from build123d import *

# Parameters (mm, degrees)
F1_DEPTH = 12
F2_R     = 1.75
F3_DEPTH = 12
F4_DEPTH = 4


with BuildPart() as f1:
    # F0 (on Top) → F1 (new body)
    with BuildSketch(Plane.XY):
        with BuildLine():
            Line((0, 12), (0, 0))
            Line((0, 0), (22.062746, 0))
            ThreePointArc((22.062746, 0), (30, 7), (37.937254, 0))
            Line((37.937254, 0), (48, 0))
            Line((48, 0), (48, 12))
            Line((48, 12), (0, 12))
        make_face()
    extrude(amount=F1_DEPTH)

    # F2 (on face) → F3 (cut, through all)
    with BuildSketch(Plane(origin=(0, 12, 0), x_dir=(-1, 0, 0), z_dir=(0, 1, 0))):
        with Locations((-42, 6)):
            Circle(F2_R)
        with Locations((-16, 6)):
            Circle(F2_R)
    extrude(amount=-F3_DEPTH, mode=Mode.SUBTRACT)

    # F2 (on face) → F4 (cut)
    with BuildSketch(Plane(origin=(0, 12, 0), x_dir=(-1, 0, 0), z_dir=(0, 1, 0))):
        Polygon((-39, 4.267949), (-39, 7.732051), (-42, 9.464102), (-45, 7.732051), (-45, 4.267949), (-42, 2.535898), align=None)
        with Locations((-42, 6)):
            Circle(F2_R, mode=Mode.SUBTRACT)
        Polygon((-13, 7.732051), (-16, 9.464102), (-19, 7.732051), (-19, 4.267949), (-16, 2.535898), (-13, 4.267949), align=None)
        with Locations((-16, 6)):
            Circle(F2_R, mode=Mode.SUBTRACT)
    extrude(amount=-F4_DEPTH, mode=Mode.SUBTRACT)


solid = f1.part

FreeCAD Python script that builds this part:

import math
import FreeCAD as App
import Part
import Sketcher

V = App.Vector
Q = App.Units.Quantity

doc = App.newDocument("Part")
body = doc.addObject("PartDesign::Body", "Body")

# Sketch on XY plane
sketch1 = doc.addObject("Sketcher::SketchObject", "Sketch")
body.addObject(sketch1)
sketch1.AttachmentSupport = (doc.XY_Plane, [""])
sketch1.MapMode = "FlatFace"
sketch1.addGeometry([
    Part.LineSegment(V(0, 12, 0), V(0, 0, 0)),  # 0
    Part.LineSegment(V(0, 0, 0), V(22, 0, 0)),  # 1
    Part.ArcOfCircle(Part.Circle(V(30, -1, 0), V(0, 0, 1), 8), math.radians(7), math.radians(173)),  # 2
    Part.LineSegment(V(38, 0, 0), V(48, 0, 0)),  # 3
    Part.LineSegment(V(48, 0, 0), V(48, 12, 0)),  # 4
    Part.LineSegment(V(48, 12, 0), V(0, 12, 0)),  # 5
], False)
sketch1.addConstraint([
    Sketcher.Constraint("Coincident", 0, 2, 1, 1),
    Sketcher.Constraint("Coincident", 1, 2, 2, 2),
    Sketcher.Constraint("Coincident", 2, 1, 3, 1),
    Sketcher.Constraint("Coincident", 3, 2, 4, 1),
    Sketcher.Constraint("Coincident", 4, 2, 5, 1),
    Sketcher.Constraint("Coincident", 5, 2, 0, 1),
    Sketcher.Constraint("Vertical", 0),
    Sketcher.Constraint("Horizontal", 1),
    Sketcher.Constraint("Horizontal", 3),
    Sketcher.Constraint("Vertical", 4),
    Sketcher.Constraint("Horizontal", 5),
    Sketcher.Constraint("Coincident", 0, 2, -1, 1),
    Sketcher.Constraint("PointOnObject", 2, 1, -1),
    Sketcher.Constraint("Radius", 2, 8.0),
    Sketcher.Constraint("DistanceX", 5, 2, 5, 1, 48.0),
    Sketcher.Constraint("DistanceY", 0, 2, 0, 1, 12.0),
    Sketcher.Constraint("DistanceX", -1, 1, 2, 3, 30.0),
    Sketcher.Constraint("DistanceY", 2, 3, -1, 1, 1.0),
])
pad1 = doc.addObject("PartDesign::Pad", "Pad")
body.addObject(pad1)
pad1.Profile = sketch1
pad1.Length = 12

# Sketch on XZ plane
sketch2 = doc.addObject("Sketcher::SketchObject", "Sketch001")
body.addObject(sketch2)
sketch2.AttachmentSupport = (doc.XZ_Plane, [""])
sketch2.MapMode = "FlatFace"
sketch2.AttachmentOffset = App.Placement(V(0, 0, -12), App.Rotation())
sketch2.addGeometry([
    Part.Circle(V(42, 6, 0), V(0, 0, 1), 1.8),
    Part.Circle(V(16, 6, 0), V(0, 0, 1), 1.8),
], False)
sketch2.addConstraint([
    Sketcher.Constraint("Equal", 0, 1),
    Sketcher.Constraint("Horizontal", 0, 3, 1, 3),
    Sketcher.Constraint("Diameter", 0, 3.5),
    Sketcher.Constraint("DistanceX", -1, 1, 0, 3, 42.0),
    Sketcher.Constraint("DistanceY", -1, 1, 0, 3, 6.0),
    Sketcher.Constraint("DistanceX", -1, 1, 1, 3, 16.0),
])
pocket1 = doc.addObject("PartDesign::Pocket", "Pocket")
body.addObject(pocket1)
pocket1.Profile = sketch2
pocket1.Type = "ThroughAll"
pocket1.Reversed = True

# Sketch on XZ plane
sketch3 = doc.addObject("Sketcher::SketchObject", "Sketch002")
body.addObject(sketch3)
sketch3.AttachmentSupport = (doc.XZ_Plane, [""])
sketch3.MapMode = "FlatFace"
sketch3.AttachmentOffset = App.Placement(V(0, 0, -12), App.Rotation())
sketch3.addGeometry([
    Part.LineSegment(V(39, 4.3, 0), V(39, 7.7, 0)),  # 0
    Part.LineSegment(V(39, 7.7, 0), V(42, 9.5, 0)),  # 1
    Part.LineSegment(V(42, 9.5, 0), V(45, 7.7, 0)),  # 2
    Part.LineSegment(V(45, 7.7, 0), V(45, 4.3, 0)),  # 3
    Part.LineSegment(V(45, 4.3, 0), V(42, 2.5, 0)),  # 4
    Part.LineSegment(V(42, 2.5, 0), V(39, 4.3, 0)),  # 5
    Part.Circle(V(42, 6, 0), V(0, 0, 1), 1.8),  # 6
    Part.LineSegment(V(13, 7.7, 0), V(16, 9.5, 0)),  # 7
    Part.LineSegment(V(16, 9.5, 0), V(19, 7.7, 0)),  # 8
    Part.LineSegment(V(19, 7.7, 0), V(19, 4.3, 0)),  # 9
    Part.LineSegment(V(19, 4.3, 0), V(16, 2.5, 0)),  # 10
    Part.LineSegment(V(16, 2.5, 0), V(13, 4.3, 0)),  # 11
    Part.LineSegment(V(13, 4.3, 0), V(13, 7.7, 0)),  # 12
    Part.Circle(V(16, 6, 0), V(0, 0, 1), 1.8),  # 13
], False)
sketch3.addConstraint([
    Sketcher.Constraint("Coincident", 0, 2, 1, 1),
    Sketcher.Constraint("Coincident", 1, 2, 2, 1),
    Sketcher.Constraint("Coincident", 2, 2, 3, 1),
    Sketcher.Constraint("Coincident", 3, 2, 4, 1),
    Sketcher.Constraint("Coincident", 4, 2, 5, 1),
    Sketcher.Constraint("Coincident", 5, 2, 0, 1),
    Sketcher.Constraint("Coincident", 7, 2, 8, 1),
    Sketcher.Constraint("Coincident", 8, 2, 9, 1),
    Sketcher.Constraint("Coincident", 9, 2, 10, 1),
    Sketcher.Constraint("Coincident", 10, 2, 11, 1),
    Sketcher.Constraint("Coincident", 11, 2, 12, 1),
    Sketcher.Constraint("Coincident", 12, 2, 7, 1),
    Sketcher.Constraint("Vertical", 0),
    Sketcher.Constraint("Vertical", 3),
    Sketcher.Constraint("Vertical", 9),
    Sketcher.Constraint("Vertical", 12),
    Sketcher.Constraint("Equal", 6, 13),
    Sketcher.Constraint("Parallel", 1, 4),
    Sketcher.Constraint("Parallel", 2, 5),
    Sketcher.Constraint("Parallel", 4, 7),
    Sketcher.Constraint("Parallel", 5, 8),
    Sketcher.Constraint("Parallel", 7, 10),
    Sketcher.Constraint("Parallel", 8, 11),
    Sketcher.Constraint("Horizontal", 6, 3, 13, 3),
    Sketcher.Constraint("Horizontal", 0, 2, 2, 2),
    Sketcher.Constraint("Horizontal", 3, 2, 5, 2),
    Sketcher.Constraint("Horizontal", 1, 2, 7, 2),
    Sketcher.Constraint("Horizontal", 2, 2, 8, 2),
    Sketcher.Constraint("Horizontal", 5, 2, 9, 2),
    Sketcher.Constraint("Horizontal", 4, 2, 10, 2),
    Sketcher.Constraint("Horizontal", 9, 2, 11, 2),
    Sketcher.Constraint("Vertical", 6, 3, 1, 2),
    Sketcher.Constraint("Vertical", 1, 2, 4, 2),
    Sketcher.Constraint("Vertical", 13, 3, 7, 2),
    Sketcher.Constraint("Diameter", 6, 3.5),
    Sketcher.Constraint("Angle", 1, Q("30.000003 deg")),
    Sketcher.Constraint("DistanceX", -1, 1, 6, 3, 42.0),
    Sketcher.Constraint("DistanceY", -1, 1, 6, 3, 6.0),
    Sketcher.Constraint("DistanceX", -1, 1, 13, 3, 16.0),
    Sketcher.Constraint("DistanceX", -1, 1, 0, 2, 39.0),
    Sketcher.Constraint("DistanceY", -1, 1, 4, 2, 2.535898),
    Sketcher.Constraint("DistanceY", 0, 1, 0, 2, 3.464102),
])
pocket2 = doc.addObject("PartDesign::Pocket", "Pocket001")
body.addObject(pocket2)
pocket2.Profile = sketch3
pocket2.Length = 4
pocket2.Reversed = True

doc.recompute()
